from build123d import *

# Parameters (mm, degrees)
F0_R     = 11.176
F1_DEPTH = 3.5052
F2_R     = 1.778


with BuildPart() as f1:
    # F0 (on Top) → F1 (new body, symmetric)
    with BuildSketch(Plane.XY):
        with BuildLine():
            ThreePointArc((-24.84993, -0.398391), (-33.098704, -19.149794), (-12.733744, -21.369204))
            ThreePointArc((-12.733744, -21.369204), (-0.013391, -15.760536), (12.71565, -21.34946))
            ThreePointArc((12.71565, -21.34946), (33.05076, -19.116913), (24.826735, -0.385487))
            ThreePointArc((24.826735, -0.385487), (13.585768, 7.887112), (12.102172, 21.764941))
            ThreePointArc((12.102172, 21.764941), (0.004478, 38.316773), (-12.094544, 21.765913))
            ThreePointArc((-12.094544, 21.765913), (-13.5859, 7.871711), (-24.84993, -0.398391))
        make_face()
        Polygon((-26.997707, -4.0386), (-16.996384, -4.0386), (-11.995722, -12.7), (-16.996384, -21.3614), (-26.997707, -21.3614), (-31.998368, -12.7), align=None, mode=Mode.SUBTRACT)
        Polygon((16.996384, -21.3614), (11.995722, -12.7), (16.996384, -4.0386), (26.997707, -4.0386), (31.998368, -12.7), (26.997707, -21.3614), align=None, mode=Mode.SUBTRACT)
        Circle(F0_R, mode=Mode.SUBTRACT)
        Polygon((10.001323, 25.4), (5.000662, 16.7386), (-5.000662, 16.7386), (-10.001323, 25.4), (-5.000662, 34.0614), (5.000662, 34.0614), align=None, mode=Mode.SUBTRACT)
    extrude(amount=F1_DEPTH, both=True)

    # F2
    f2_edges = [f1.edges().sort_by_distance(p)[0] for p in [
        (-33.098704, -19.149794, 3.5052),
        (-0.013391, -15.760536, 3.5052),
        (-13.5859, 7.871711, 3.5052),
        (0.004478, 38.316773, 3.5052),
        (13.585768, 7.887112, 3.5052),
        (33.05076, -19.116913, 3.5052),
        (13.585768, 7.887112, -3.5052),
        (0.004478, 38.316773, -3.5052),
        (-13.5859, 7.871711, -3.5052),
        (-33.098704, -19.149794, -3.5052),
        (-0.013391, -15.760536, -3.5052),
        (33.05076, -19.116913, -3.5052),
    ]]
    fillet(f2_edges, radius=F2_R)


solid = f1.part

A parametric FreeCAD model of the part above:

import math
import FreeCAD as App
import Part
import Sketcher
from FreeCAD import Vector
Q = App.Units.Quantity


def edges_at(feature, points):
    """Names of the edges that pass closest to the given points."""
    edges = feature.Shape.Edges
    near = lambda p: min(range(len(edges)), key=lambda i: edges[i].distToShape(Part.Vertex(*p))[0])
    return sorted({f"Edge{near(p) + 1}" for p in points})

doc = App.newDocument("Part")
body = doc.addObject("PartDesign::Body", "Body")

sketch1 = body.newObject("Sketcher::SketchObject", "Sketch")
sketch1.AttachmentSupport = (doc.getObject("XY_Plane"), [""])
sketch1.MapMode = "FlatFace"
sketch1.addGeometry([
    Part.ArcOfCircle(Part.Circle(Vector(-22.102929, -12.796828, 0), Vector(0, 0, 1), 12.699104), math.radians(102.492662), math.radians(317.542911)),
    Part.ArcOfCircle(Part.Circle(Vector(0, -33.019999, 0), Vector(0, 0, 1), 17.259469), math.radians(42.545995), math.radians(137.542907)),
    Part.ArcOfCircle(Part.Circle(Vector(22.063799, -12.769643, 0), Vector(0, 0, 1), 12.688623), math.radians(-137.454003), math.radians(77.42314)),
    Part.ArcOfCircle(Part.Circle(Vector(28.596158, 16.509999, 0), Vector(0, 0, 1), 17.310864), math.radians(162.328254), math.radians(257.423144)),
    Part.ArcOfCircle(Part.Circle(Vector(0.003969, 25.619397, 0), Vector(0, 0, 1), 12.697376), math.radians(-17.671744), math.radians(197.667141)),
    Part.ArcOfCircle(Part.Circle(Vector(-28.596159, 16.51, 0), Vector(0, 0, 1), 17.318428), math.radians(-77.507334), math.radians(17.667144)),
    Part.LineSegment(Vector(-31.998368, -12.7, 0), Vector(-26.997707, -4.0386, 0)),
    Part.LineSegment(Vector(-26.997707, -4.0386, 0), Vector(-16.996384, -4.0386, 0)),
    Part.LineSegment(Vector(-16.996384, -4.0386, 0), Vector(-11.995722, -12.7, 0)),
    Part.LineSegment(Vector(-11.995722, -12.7, 0), Vector(-16.996384, -21.3614, 0)),
    Part.LineSegment(Vector(-16.996384, -21.3614, 0), Vector(-26.997707, -21.3614, 0)),
    Part.LineSegment(Vector(-26.997707, -21.3614, 0), Vector(-31.998368, -12.7, 0)),
    Part.LineSegment(Vector(26.997707, -21.3614, 0), Vector(16.996384, -21.3614, 0)),
    Part.LineSegment(Vector(16.996384, -21.3614, 0), Vector(11.995722, -12.7, 0)),
    Part.LineSegment(Vector(11.995722, -12.7, 0), Vector(16.996384, -4.0386, 0)),
    Part.LineSegment(Vector(16.996384, -4.0386, 0), Vector(26.997707, -4.0386, 0)),
    Part.LineSegment(Vector(26.997707, -4.0386, 0), Vector(31.998368, -12.7, 0)),
    Part.LineSegment(Vector(31.998368, -12.7, 0), Vector(26.997707, -21.3614, 0)),
    Part.Circle(Vector(0, 0, 0), Vector(0, 0, 1), 11.176),
    Part.LineSegment(Vector(5.000662, 34.0614, 0), Vector(10.001323, 25.4, 0)),
    Part.LineSegment(Vector(10.001323, 25.4, 0), Vector(5.000662, 16.7386, 0)),
    Part.LineSegment(Vector(5.000662, 16.7386, 0), Vector(-5.000662, 16.7386, 0)),
    Part.LineSegment(Vector(-5.000662, 16.7386, 0), Vector(-10.001323, 25.4, 0)),
    Part.LineSegment(Vector(-10.001323, 25.4, 0), Vector(-5.000662, 34.0614, 0)),
    Part.LineSegment(Vector(-5.000662, 34.0614, 0), Vector(5.000662, 34.0614, 0)),
], False)
sketch1.addConstraint([
    Sketcher.Constraint("Tangent", 0, 2, 1, 2),
    Sketcher.Constraint("Tangent", 1, 1, 2, 1),
    Sketcher.Constraint("Tangent", 2, 2, 3, 2),
    Sketcher.Constraint("Tangent", 3, 1, 4, 1),
    Sketcher.Constraint("Tangent", 4, 2, 5, 2),
    Sketcher.Constraint("Tangent", 5, 1, 0, 1),
    Sketcher.Constraint("Coincident", 6, 2, 7, 1),
    Sketcher.Constraint("Coincident", 7, 2, 8, 1),
    Sketcher.Constraint("Coincident", 8, 2, 9, 1),
    Sketcher.Constraint("Coincident", 9, 2, 10, 1),
    Sketcher.Constraint("Coincident", 10, 2, 11, 1),
    Sketcher.Constraint("Coincident", 11, 2, 6, 1),
    Sketcher.Constraint("Coincident", 12, 2, 13, 1),
    Sketcher.Constraint("Coincident", 13, 2, 14, 1),
    Sketcher.Constraint("Coincident", 14, 2, 15, 1),
    Sketcher.Constraint("Coincident", 15, 2, 16, 1),
    Sketcher.Constraint("Coincident", 16, 2, 17, 1),
    Sketcher.Constraint("Coincident", 17, 2, 12, 1),
    Sketcher.Constraint("Coincident", 19, 2, 20, 1),
    Sketcher.Constraint("Coincident", 20, 2, 21, 1),
    Sketcher.Constraint("Coincident", 21, 2, 22, 1),
    Sketcher.Constraint("Coincident", 22, 2, 23, 1),
    Sketcher.Constraint("Coincident", 23, 2, 24, 1),
    Sketcher.Constraint("Coincident", 24, 2, 19, 1),
    Sketcher.Constraint("Horizontal", 7),
    Sketcher.Constraint("Horizontal", 10),
    Sketcher.Constraint("Horizontal", 12),
    Sketcher.Constraint("Horizontal", 15),
    Sketcher.Constraint("Horizontal", 21),
    Sketcher.Constraint("Horizontal", 24),
    Sketcher.Constraint("Coincident", 18, 3, -1, 1),
    Sketcher.Constraint("Symmetric", 3, 3, 5, 3, -2),
    Sketcher.Constraint("Symmetric", 9, 2, 12, 2, -2),
    Sketcher.Constraint("Symmetric", 8, 2, 13, 2, -2),
    Sketcher.Constraint("Symmetric", 7, 2, 14, 2, -2),
    Sketcher.Constraint("Symmetric", 11, 2, 16, 2, -2),
    Sketcher.Constraint("Symmetric", 19, 2, 22, 2, -2),
    Sketcher.Constraint("PointOnObject", 1, 3, -2),
    Sketcher.Constraint("Parallel", 6, 9),
    Sketcher.Constraint("Parallel", 8, 11),
    Sketcher.Constraint("Parallel", 11, 13),
    Sketcher.Constraint("Parallel", 13, 16),
    Sketcher.Constraint("Parallel", 14, 17),
    Sketcher.Constraint("Parallel", 16, 19),
    Sketcher.Constraint("Parallel", 17, 20),
    Sketcher.Constraint("Parallel", 19, 22),
    Sketcher.Constraint("Parallel", 20, 23),
    Sketcher.Constraint("Horizontal", 8, 2, 11, 2),
    Sketcher.Constraint("Vertical", 7, 2, 9, 2),
    Sketcher.Constraint("Vertical", 21, 2, 23, 2),
    Sketcher.Constraint("Equal", 15, 21),
    Sketcher.Constraint("Equal", 17, 19),
    Sketcher.Constraint("Diameter", 18, Q("0.88 in")),
    Sketcher.Constraint("DistanceY", -1, 1, 19, 2, Q("1 in")),
    Sketcher.Constraint("Angle", 6, Q("60.000003 deg")),
    Sketcher.Constraint("DistanceY", 1, 3, -1, 1, Q("1.3 in")),
    Sketcher.Constraint("DistanceY", 8, 2, -1, 1, Q("0.5 in")),
    Sketcher.Constraint("DistanceY", -1, 1, 3, 3, Q("0.65 in")),
    Sketcher.Constraint("DistanceY", 6, 2, -1, 1, Q("0.159 in")),
    Sketcher.Constraint("Radius", 1, Q("17.259469 mm")),
    Sketcher.Constraint("Radius", 0, Q("12.699104 mm")),
    Sketcher.Constraint("Radius", 2, Q("12.688623 mm")),
    Sketcher.Constraint("Radius", 3, Q("17.310864 mm")),
    Sketcher.Constraint("Radius", 4, Q("12.697376 mm")),
    Sketcher.Constraint("Radius", 5, Q("17.318428 mm")),
    Sketcher.Constraint("DistanceX", -1, 1, 2, 3, Q("22.063799 mm")),
    Sketcher.Constraint("DistanceX", 7, 1, 7, 2, Q("10.001323 mm")),
    Sketcher.Constraint("DistanceX", 6, 2, 0, 3, Q("4.894778 mm")),
])
pad1 = body.newObject("PartDesign::Pad", "Pad")
pad1.Profile = sketch1
pad1.Length = Q("0.276 in")
pad1.Midplane = True
doc.recompute()

fillet = body.newObject("PartDesign::Fillet", "Fillet")
fillet.Base = (pad1, edges_at(pad1, [
    (-33.099, -19.15, 3.505),
    (-0.013, -15.761, 3.505),
    (-13.586, 7.872, 3.505),
    (0.004, 38.317, 3.505),
    (13.586, 7.887, 3.505),
    (33.051, -19.117, 3.505),
    (13.586, 7.887, -3.505),
    (0.004, 38.317, -3.505),
    (-13.586, 7.872, -3.505),
    (-33.099, -19.15, -3.505),
    (-0.013, -15.761, -3.505),
    (33.051, -19.117, -3.505),
]))
fillet.Radius = Q("0.07 in")

doc.recompute()
